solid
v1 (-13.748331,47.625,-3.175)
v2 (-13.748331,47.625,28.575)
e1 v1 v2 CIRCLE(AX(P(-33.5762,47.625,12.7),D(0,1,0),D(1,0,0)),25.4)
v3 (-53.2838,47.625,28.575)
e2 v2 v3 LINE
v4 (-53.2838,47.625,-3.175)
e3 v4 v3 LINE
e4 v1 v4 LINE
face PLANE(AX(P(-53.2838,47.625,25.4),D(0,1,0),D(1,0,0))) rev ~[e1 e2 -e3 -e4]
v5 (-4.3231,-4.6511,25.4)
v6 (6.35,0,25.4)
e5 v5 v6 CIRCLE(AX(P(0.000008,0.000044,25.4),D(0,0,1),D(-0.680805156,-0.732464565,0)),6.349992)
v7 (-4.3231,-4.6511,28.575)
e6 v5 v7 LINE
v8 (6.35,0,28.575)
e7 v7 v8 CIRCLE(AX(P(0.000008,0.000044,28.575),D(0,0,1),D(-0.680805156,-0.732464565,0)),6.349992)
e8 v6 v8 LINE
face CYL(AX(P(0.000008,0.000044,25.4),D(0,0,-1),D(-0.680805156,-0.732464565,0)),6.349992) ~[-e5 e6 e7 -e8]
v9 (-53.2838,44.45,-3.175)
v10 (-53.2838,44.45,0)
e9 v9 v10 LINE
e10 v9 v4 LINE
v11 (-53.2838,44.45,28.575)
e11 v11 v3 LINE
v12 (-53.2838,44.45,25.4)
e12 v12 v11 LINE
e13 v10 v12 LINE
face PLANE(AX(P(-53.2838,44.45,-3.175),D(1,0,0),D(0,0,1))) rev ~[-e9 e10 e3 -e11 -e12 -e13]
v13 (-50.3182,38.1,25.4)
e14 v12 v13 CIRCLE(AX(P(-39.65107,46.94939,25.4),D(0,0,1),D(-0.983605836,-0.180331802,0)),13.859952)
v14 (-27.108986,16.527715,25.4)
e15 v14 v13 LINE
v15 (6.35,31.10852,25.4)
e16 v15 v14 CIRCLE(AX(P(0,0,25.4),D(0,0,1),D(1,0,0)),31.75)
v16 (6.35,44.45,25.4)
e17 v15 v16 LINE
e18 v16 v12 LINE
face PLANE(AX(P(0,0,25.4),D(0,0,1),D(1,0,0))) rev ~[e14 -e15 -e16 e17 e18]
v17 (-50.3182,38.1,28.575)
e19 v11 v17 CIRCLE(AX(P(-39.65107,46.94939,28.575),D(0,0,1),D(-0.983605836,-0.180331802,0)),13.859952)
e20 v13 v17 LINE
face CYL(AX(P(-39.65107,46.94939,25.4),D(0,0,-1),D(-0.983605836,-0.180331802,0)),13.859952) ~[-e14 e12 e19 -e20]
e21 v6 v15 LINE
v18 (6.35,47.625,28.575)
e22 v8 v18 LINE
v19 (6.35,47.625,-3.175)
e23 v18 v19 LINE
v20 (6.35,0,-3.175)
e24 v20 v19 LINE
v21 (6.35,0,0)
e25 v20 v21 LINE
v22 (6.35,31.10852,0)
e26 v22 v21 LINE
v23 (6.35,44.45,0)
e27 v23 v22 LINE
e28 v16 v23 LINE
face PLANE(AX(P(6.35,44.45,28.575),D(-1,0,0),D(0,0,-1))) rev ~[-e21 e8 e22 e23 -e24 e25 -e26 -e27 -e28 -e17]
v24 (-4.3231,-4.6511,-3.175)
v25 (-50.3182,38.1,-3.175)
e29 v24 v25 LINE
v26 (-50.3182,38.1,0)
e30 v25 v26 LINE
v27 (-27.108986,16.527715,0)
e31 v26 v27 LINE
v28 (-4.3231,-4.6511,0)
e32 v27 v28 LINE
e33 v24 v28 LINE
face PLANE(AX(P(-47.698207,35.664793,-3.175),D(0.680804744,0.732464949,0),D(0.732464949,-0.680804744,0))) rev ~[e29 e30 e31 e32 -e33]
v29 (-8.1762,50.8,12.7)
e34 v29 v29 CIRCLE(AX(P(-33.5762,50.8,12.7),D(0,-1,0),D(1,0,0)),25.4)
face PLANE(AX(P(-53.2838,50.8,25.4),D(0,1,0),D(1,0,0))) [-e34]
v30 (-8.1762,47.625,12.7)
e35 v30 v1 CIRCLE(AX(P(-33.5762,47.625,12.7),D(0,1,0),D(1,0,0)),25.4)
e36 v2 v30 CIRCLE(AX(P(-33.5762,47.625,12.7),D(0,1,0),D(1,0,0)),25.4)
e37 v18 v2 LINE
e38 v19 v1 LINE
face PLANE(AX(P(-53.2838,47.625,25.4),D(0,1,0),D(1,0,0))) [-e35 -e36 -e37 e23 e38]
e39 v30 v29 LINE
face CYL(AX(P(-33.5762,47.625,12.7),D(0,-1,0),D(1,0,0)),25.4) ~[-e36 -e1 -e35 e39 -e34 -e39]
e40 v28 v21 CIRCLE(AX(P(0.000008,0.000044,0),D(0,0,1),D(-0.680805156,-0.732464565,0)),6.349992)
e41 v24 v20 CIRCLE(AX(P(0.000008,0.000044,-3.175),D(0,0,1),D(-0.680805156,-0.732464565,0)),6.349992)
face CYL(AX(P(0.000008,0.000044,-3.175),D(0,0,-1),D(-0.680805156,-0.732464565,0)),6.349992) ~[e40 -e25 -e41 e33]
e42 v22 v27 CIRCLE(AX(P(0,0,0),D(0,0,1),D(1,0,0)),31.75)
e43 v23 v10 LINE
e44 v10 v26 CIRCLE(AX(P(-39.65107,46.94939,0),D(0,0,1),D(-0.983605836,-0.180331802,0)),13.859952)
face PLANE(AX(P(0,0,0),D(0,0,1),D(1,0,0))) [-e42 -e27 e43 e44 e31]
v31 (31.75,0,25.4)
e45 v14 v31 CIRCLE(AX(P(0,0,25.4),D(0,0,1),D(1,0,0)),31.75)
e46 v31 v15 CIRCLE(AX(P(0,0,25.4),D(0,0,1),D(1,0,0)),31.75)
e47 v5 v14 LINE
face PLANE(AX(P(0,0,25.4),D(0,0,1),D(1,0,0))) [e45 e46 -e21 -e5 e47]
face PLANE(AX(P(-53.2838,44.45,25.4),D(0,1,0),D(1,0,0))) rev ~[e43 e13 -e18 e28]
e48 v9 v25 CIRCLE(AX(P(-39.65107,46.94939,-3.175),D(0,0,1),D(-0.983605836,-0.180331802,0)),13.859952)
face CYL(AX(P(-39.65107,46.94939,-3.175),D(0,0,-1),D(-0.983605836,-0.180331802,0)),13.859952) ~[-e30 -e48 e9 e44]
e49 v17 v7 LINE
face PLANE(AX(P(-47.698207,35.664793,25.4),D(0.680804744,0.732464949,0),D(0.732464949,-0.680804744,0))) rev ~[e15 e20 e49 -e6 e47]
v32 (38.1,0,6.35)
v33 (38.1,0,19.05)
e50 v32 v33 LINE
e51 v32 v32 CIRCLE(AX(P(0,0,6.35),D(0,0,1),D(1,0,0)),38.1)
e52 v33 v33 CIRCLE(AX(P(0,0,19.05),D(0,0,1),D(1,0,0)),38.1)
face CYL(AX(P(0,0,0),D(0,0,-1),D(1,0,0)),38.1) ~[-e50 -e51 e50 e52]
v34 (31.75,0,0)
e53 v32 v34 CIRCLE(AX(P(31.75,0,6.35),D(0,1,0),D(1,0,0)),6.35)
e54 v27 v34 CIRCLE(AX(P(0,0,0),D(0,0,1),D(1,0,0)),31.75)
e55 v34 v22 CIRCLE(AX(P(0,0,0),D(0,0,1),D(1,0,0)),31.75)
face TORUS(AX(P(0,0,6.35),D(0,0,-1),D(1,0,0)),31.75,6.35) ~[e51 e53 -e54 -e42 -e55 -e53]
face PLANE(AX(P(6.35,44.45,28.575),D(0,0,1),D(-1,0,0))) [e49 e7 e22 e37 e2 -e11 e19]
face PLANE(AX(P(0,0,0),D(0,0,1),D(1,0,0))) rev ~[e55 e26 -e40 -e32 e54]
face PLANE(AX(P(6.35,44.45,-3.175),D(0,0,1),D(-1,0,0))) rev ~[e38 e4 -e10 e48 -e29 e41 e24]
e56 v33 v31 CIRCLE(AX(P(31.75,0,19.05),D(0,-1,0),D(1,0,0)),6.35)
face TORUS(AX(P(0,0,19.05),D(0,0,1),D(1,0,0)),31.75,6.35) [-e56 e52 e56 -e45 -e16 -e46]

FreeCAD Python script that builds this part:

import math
import FreeCAD as App
import Part
import Sketcher
Q = App.Units.Quantity


def edges_at(feature, points):
    """Names of the edges that pass closest to the given points."""
    edges = feature.Shape.Edges
    near = lambda p: min(range(len(edges)), key=lambda i: edges[i].distToShape(Part.Vertex(*p))[0])
    return sorted({f"Edge{near(p) + 1}" for p in points})


def add_polygon(sketch, points):
    """Adds a closed chain of lines whose ends are joined by coincident constraints."""
    first, n = sketch.GeometryCount, len(points)
    for a, b in zip(points, points[1:] + points[:1]):
        sketch.addGeometry(Part.LineSegment(App.Vector(*a, 0), App.Vector(*b, 0)), False)
    for i in range(n):
        sketch.addConstraint(Sketcher.Constraint("Coincident", first + i, 2, first + (i + 1) % n, 1))

doc = App.newDocument("Part")
body = doc.addObject("PartDesign::Body", "Body")

# Sketch on XY plane
sketch1 = body.newObject("Sketcher::SketchObject", "Sketch")
sketch1.AttachmentSupport = (doc.getObject("XY_Plane"), [""])
sketch1.MapMode = "FlatFace"
sketch1.addGeometry(Part.Circle(App.Vector(0, 0, 0), App.Vector(0, 0, 1), 38.1), False)
sketch1.addConstraint(Sketcher.Constraint("Coincident", 0, 3, -1, 1))
sketch1.addConstraint(Sketcher.Constraint("Diameter", 0, Q("3 in")))
pad1 = body.newObject("PartDesign::Pad", "Pad")
pad1.Profile = sketch1
pad1.Length = Q("1 in")
doc.recompute()

fillet = body.newObject("PartDesign::Fillet", "Fillet")
fillet.Base = (pad1, edges_at(pad1, [(-38.1, 0, 25.4), (-38.1, 0, 0)]))
fillet.Radius = Q("0.25 in")

# Sketch on XY plane
sketch2 = body.newObject("Sketcher::SketchObject", "Sketch001")
sketch2.AttachmentSupport = (doc.getObject("XY_Plane"), [""])
sketch2.MapMode = "FlatFace"
sketch2.AttachmentOffset = App.Placement(App.Vector(0, 0, 1 * 25.4), App.Rotation())
sketch2.addGeometry(Part.LineSegment(App.Vector(6.35, 44.45, 0), App.Vector(-53.2838, 44.45, 0)), False)
sketch2.addGeometry(Part.ArcOfCircle(Part.Circle(App.Vector(-39.6513, 46.9493, 0), App.Vector(0, 0, 1), 13.85971), math.radians(-169.611108), math.radians(-140.320773)), False)
sketch2.addGeometry(Part.LineSegment(App.Vector(-50.3182, 38.1, 0), App.Vector(-4.3231, -4.6511, 0)), False)
sketch2.addGeometry(Part.ArcOfCircle(Part.Circle(App.Vector(0, 0, 0), App.Vector(0, 0, 1), 6.349955), math.radians(-132.906816), math.radians(0)), False)
sketch2.addGeometry(Part.LineSegment(App.Vector(6.35, 0, 0), App.Vector(6.35, 44.45, 0)), False)
sketch2.addConstraint(Sketcher.Constraint("Coincident", 0, 2, 1, 1))
sketch2.addConstraint(Sketcher.Constraint("Coincident", 1, 2, 2, 1))
sketch2.addConstraint(Sketcher.Constraint("Tangent", 2, 2, 3, 1))
sketch2.addConstraint(Sketcher.Constraint("Tangent", 3, 2, 4, 1))
sketch2.addConstraint(Sketcher.Constraint("Coincident", 4, 2, 0, 1))
sketch2.addConstraint(Sketcher.Constraint("Horizontal", 0))
sketch2.addConstraint(Sketcher.Constraint("Vertical", 4))
sketch2.addConstraint(Sketcher.Constraint("Coincident", 3, 3, -1, 1))
sketch2.addConstraint(Sketcher.Constraint("Radius", 3, Q("0.25 in")))
sketch2.addConstraint(Sketcher.Constraint("DistanceY", 4, 1, 4, 2, Q("1.75 in")))
sketch2.addConstraint(Sketcher.Constraint("DistanceY", -1, 1, 1, 2, Q("1.5 in")))
sketch2.addConstraint(Sketcher.Constraint("Radius", 1, 13.8597))
sketch2.addConstraint(Sketcher.Constraint("DistanceX", 0, 2, 0, 1, 59.6338))
sketch2.addConstraint(Sketcher.Constraint("DistanceY", -1, 1, 1, 3, Q("1.8484 in")))
pad2 = body.newObject("PartDesign::Pad", "Pad001")
pad2.Profile = sketch2
pad2.Length = Q("0.125 in")
doc.recompute()

linearpattern = body.newObject("PartDesign::LinearPattern", "LinearPattern")
linearpattern.Originals = [pad2]
linearpattern.Direction = (doc.getObject("Z_Axis"), [""])
linearpattern.Mode = "offset"
linearpattern.Offset = Q("1.125 in")
linearpattern.Occurrences = 2
linearpattern.Reversed = True
body.Tip = linearpattern

# Sketch on XZ plane
sketch3 = body.newObject("Sketcher::SketchObject", "Sketch002")
sketch3.AttachmentSupport = (doc.getObject("XZ_Plane"), [""])
sketch3.MapMode = "FlatFace"
sketch3.AttachmentOffset = App.Placement(App.Vector(0, 0, -1.75 * 25.4), App.Rotation())
add_polygon(sketch3, [(-53.2838, 28.575), (6.35, 28.575), (6.35, -3.175), (-53.2838, -3.175)])  # lines 0-3
sketch3.addConstraint(Sketcher.Constraint("Horizontal", 0))
sketch3.addConstraint(Sketcher.Constraint("Vertical", 1))
sketch3.addConstraint(Sketcher.Constraint("Horizontal", 2))
sketch3.addConstraint(Sketcher.Constraint("Vertical", 3))
sketch3.addConstraint(Sketcher.Constraint("DistanceY", 1, 2, 1, 1, Q("1.25 in")))
sketch3.addConstraint(Sketcher.Constraint("DistanceX", -1, 1, 0, 2, Q("0.25 in")))
sketch3.addConstraint(Sketcher.Constraint("DistanceY", -1, 1, 0, 2, Q("1.125 in")))
sketch3.addConstraint(Sketcher.Constraint("DistanceX", 0, 1, 0, 2, 59.6338))
pad3 = body.newObject("PartDesign::Pad", "Pad002")
pad3.Profile = sketch3
pad3.Length = Q("0.125 in")
pad3.Reversed = True

# Sketch on XZ plane
sketch4 = body.newObject("Sketcher::SketchObject", "Sketch003")
sketch4.AttachmentSupport = (doc.getObject("XZ_Plane"), [""])
sketch4.MapMode = "FlatFace"
sketch4.AttachmentOffset = App.Placement(App.Vector(0, 0, -1.875 * 25.4), App.Rotation())
sketch4.addGeometry(Part.Circle(App.Vector(-33.5762, 12.7, 0), App.Vector(0, 0, 1), 25.4), False)
sketch4.addConstraint(Sketcher.Constraint("Diameter", 0, Q("2 in")))
sketch4.addConstraint(Sketcher.Constraint("DistanceY", -1, 1, 0, 3, Q("0.5 in")))
sketch4.addConstraint(Sketcher.Constraint("DistanceX", 0, 3, -1, 1, Q("1.3219 in")))
pad4 = body.newObject("PartDesign::Pad", "Pad003")
pad4.Profile = sketch4
pad4.Length = Q("0.125 in")
pad4.Reversed = True

doc.recompute()
